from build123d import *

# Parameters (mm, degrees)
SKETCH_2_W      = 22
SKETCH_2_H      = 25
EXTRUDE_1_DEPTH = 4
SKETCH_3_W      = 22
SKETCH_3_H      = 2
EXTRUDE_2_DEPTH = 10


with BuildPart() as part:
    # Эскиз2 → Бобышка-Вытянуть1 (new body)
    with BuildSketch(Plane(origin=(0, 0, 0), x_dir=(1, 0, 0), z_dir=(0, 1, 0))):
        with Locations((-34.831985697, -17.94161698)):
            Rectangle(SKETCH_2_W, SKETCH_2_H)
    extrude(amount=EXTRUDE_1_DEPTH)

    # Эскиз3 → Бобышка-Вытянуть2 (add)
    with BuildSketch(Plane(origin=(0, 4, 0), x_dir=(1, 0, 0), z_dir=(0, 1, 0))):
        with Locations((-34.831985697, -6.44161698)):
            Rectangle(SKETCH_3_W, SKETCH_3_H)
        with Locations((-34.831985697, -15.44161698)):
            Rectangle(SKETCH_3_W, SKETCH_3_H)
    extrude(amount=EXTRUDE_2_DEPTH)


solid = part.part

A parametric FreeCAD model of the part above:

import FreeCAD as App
import Part
import Sketcher
Q = App.Units.Quantity

doc = App.newDocument("Part")
params = doc.addObject("Spreadsheet::Sheet", "Params")
for row, (alias, value) in enumerate([
    ("sketch1_width", "22 mm"),
    ("sketch1_height", "25 mm"),
    ("pad1_length", "4 mm"),
    ("sketch2_width", "22 mm"),
    ("sketch2_height", "2 mm"),
    ("pad2_length", "10 mm"),
], start=1):
    params.set(f"A{row}", alias)
    params.set(f"B{row}", "=" + value)
    params.setAlias(f"B{row}", alias)

body = doc.addObject("PartDesign::Body", "Body")

sketch1 = body.newObject("Sketcher::SketchObject", "Sketch")
sketch1.AttachmentSupport = (doc.getObject("XZ_Plane"), [""])
sketch1.MapMode = "FlatFace"
sketch1.addGeometry(Part.LineSegment(App.Vector(-45.831986, 5.441617, 0), App.Vector(-45.831986, 30.441617, 0)), False)
sketch1.addGeometry(Part.LineSegment(App.Vector(-45.831986, 30.441617, 0), App.Vector(-23.831986, 30.441617, 0)), False)
sketch1.addGeometry(Part.LineSegment(App.Vector(-23.831986, 30.441617, 0), App.Vector(-23.831986, 5.441617, 0)), False)
sketch1.addGeometry(Part.LineSegment(App.Vector(-23.831986, 5.441617, 0), App.Vector(-45.831986, 5.441617, 0)), False)
sketch1.addConstraint(Sketcher.Constraint("Coincident", 0, 2, 1, 1))
sketch1.addConstraint(Sketcher.Constraint("Coincident", 1, 2, 2, 1))
sketch1.addConstraint(Sketcher.Constraint("Coincident", 2, 2, 3, 1))
sketch1.addConstraint(Sketcher.Constraint("Coincident", 3, 2, 0, 1))
sketch1.addConstraint(Sketcher.Constraint("Vertical", 0))
sketch1.addConstraint(Sketcher.Constraint("Horizontal", 1))
sketch1.addConstraint(Sketcher.Constraint("Vertical", 2))
sketch1.addConstraint(Sketcher.Constraint("Horizontal", 3))
sketch1.addConstraint(Sketcher.Constraint("DistanceX", 1, 1, 1, 2, Q("22 mm")))
sketch1.addConstraint(Sketcher.Constraint("DistanceY", 0, 1, 0, 2, Q("25 mm")))
sketch1.addConstraint(Sketcher.Constraint("DistanceX", 0, 2, -1, 1, Q("45.831986 mm")))
sketch1.addConstraint(Sketcher.Constraint("DistanceY", -1, 1, 0, 2, Q("30.441617 mm")))
sketch1.setExpression("Constraints[8]", "Params.sketch1_width")
sketch1.setExpression("Constraints[9]", "Params.sketch1_height")
pad1 = body.newObject("PartDesign::Pad", "Pad")
pad1.Profile = sketch1
pad1.setExpression("Length", "Params.pad1_length")
pad1.Reversed = True

sketch2 = body.newObject("Sketcher::SketchObject", "Sketch001")
sketch2.AttachmentSupport = (doc.getObject("XZ_Plane"), [""])
sketch2.MapMode = "FlatFace"
sketch2.AttachmentOffset = App.Placement(App.Vector(0, 0, -4), App.Rotation())
sketch2.addGeometry(Part.LineSegment(App.Vector(-45.831986, 5.441617, 0), App.Vector(-45.831986, 7.441617, 0)), False)
sketch2.addGeometry(Part.LineSegment(App.Vector(-45.831986, 7.441617, 0), App.Vector(-23.831986, 7.441617, 0)), False)
sketch2.addGeometry(Part.LineSegment(App.Vector(-23.831986, 7.441617, 0), App.Vector(-23.831986, 5.441617, 0)), False)
sketch2.addGeometry(Part.LineSegment(App.Vector(-23.831986, 5.441617, 0), App.Vector(-45.831986, 5.441617, 0)), False)
sketch2.addGeometry(Part.LineSegment(App.Vector(-45.831986, 14.441617, 0), App.Vector(-45.831986, 16.441617, 0)), False)
sketch2.addGeometry(Part.LineSegment(App.Vector(-45.831986, 16.441617, 0), App.Vector(-23.831986, 16.441617, 0)), False)
sketch2.addGeometry(Part.LineSegment(App.Vector(-23.831986, 16.441617, 0), App.Vector(-23.831986, 14.441617, 0)), False)
sketch2.addGeometry(Part.LineSegment(App.Vector(-23.831986, 14.441617, 0), App.Vector(-45.831986, 14.441617, 0)), False)
sketch2.addConstraint(Sketcher.Constraint("Coincident", 0, 2, 1, 1))
sketch2.addConstraint(Sketcher.Constraint("Coincident", 1, 2, 2, 1))
sketch2.addConstraint(Sketcher.Constraint("Coincident", 2, 2, 3, 1))
sketch2.addConstraint(Sketcher.Constraint("Coincident", 3, 2, 0, 1))
sketch2.addConstraint(Sketcher.Constraint("Coincident", 4, 2, 5, 1))
sketch2.addConstraint(Sketcher.Constraint("Coincident", 5, 2, 6, 1))
sketch2.addConstraint(Sketcher.Constraint("Coincident", 6, 2, 7, 1))
sketch2.addConstraint(Sketcher.Constraint("Coincident", 7, 2, 4, 1))
sketch2.addConstraint(Sketcher.Constraint("Vertical", 0))
sketch2.addConstraint(Sketcher.Constraint("Horizontal", 1))
sketch2.addConstraint(Sketcher.Constraint("Vertical", 2))
sketch2.addConstraint(Sketcher.Constraint("Horizontal", 3))
sketch2.addConstraint(Sketcher.Constraint("Vertical", 4))
sketch2.addConstraint(Sketcher.Constraint("Horizontal", 5))
sketch2.addConstraint(Sketcher.Constraint("Vertical", 6))
sketch2.addConstraint(Sketcher.Constraint("Horizontal", 7))
sketch2.addConstraint(Sketcher.Constraint("Vertical", 3, 2, 4, 2))
sketch2.addConstraint(Sketcher.Constraint("Vertical", 2, 2, 5, 2))
sketch2.addConstraint(Sketcher.Constraint("Equal", 2, 4))
sketch2.addConstraint(Sketcher.Constraint("DistanceX", 1, 1, 1, 2, Q("22 mm")))
sketch2.addConstraint(Sketcher.Constraint("DistanceY", 0, 1, 0, 2, Q("2 mm")))
sketch2.addConstraint(Sketcher.Constraint("DistanceY", 0, 2, 4, 2, Q("9 mm")))
sketch2.addConstraint(Sketcher.Constraint("DistanceX", 0, 2, -1, 1, Q("45.831986 mm")))
sketch2.addConstraint(Sketcher.Constraint("DistanceY", -1, 1, 0, 2, Q("7.441617 mm")))
sketch2.setExpression("Constraints[19]", "Params.sketch2_width")
sketch2.setExpression("Constraints[20]", "Params.sketch2_height")
pad2 = body.newObject("PartDesign::Pad", "Pad001")
pad2.Profile = sketch2
pad2.setExpression("Length", "Params.pad2_length")
pad2.Reversed = True

doc.recompute()
